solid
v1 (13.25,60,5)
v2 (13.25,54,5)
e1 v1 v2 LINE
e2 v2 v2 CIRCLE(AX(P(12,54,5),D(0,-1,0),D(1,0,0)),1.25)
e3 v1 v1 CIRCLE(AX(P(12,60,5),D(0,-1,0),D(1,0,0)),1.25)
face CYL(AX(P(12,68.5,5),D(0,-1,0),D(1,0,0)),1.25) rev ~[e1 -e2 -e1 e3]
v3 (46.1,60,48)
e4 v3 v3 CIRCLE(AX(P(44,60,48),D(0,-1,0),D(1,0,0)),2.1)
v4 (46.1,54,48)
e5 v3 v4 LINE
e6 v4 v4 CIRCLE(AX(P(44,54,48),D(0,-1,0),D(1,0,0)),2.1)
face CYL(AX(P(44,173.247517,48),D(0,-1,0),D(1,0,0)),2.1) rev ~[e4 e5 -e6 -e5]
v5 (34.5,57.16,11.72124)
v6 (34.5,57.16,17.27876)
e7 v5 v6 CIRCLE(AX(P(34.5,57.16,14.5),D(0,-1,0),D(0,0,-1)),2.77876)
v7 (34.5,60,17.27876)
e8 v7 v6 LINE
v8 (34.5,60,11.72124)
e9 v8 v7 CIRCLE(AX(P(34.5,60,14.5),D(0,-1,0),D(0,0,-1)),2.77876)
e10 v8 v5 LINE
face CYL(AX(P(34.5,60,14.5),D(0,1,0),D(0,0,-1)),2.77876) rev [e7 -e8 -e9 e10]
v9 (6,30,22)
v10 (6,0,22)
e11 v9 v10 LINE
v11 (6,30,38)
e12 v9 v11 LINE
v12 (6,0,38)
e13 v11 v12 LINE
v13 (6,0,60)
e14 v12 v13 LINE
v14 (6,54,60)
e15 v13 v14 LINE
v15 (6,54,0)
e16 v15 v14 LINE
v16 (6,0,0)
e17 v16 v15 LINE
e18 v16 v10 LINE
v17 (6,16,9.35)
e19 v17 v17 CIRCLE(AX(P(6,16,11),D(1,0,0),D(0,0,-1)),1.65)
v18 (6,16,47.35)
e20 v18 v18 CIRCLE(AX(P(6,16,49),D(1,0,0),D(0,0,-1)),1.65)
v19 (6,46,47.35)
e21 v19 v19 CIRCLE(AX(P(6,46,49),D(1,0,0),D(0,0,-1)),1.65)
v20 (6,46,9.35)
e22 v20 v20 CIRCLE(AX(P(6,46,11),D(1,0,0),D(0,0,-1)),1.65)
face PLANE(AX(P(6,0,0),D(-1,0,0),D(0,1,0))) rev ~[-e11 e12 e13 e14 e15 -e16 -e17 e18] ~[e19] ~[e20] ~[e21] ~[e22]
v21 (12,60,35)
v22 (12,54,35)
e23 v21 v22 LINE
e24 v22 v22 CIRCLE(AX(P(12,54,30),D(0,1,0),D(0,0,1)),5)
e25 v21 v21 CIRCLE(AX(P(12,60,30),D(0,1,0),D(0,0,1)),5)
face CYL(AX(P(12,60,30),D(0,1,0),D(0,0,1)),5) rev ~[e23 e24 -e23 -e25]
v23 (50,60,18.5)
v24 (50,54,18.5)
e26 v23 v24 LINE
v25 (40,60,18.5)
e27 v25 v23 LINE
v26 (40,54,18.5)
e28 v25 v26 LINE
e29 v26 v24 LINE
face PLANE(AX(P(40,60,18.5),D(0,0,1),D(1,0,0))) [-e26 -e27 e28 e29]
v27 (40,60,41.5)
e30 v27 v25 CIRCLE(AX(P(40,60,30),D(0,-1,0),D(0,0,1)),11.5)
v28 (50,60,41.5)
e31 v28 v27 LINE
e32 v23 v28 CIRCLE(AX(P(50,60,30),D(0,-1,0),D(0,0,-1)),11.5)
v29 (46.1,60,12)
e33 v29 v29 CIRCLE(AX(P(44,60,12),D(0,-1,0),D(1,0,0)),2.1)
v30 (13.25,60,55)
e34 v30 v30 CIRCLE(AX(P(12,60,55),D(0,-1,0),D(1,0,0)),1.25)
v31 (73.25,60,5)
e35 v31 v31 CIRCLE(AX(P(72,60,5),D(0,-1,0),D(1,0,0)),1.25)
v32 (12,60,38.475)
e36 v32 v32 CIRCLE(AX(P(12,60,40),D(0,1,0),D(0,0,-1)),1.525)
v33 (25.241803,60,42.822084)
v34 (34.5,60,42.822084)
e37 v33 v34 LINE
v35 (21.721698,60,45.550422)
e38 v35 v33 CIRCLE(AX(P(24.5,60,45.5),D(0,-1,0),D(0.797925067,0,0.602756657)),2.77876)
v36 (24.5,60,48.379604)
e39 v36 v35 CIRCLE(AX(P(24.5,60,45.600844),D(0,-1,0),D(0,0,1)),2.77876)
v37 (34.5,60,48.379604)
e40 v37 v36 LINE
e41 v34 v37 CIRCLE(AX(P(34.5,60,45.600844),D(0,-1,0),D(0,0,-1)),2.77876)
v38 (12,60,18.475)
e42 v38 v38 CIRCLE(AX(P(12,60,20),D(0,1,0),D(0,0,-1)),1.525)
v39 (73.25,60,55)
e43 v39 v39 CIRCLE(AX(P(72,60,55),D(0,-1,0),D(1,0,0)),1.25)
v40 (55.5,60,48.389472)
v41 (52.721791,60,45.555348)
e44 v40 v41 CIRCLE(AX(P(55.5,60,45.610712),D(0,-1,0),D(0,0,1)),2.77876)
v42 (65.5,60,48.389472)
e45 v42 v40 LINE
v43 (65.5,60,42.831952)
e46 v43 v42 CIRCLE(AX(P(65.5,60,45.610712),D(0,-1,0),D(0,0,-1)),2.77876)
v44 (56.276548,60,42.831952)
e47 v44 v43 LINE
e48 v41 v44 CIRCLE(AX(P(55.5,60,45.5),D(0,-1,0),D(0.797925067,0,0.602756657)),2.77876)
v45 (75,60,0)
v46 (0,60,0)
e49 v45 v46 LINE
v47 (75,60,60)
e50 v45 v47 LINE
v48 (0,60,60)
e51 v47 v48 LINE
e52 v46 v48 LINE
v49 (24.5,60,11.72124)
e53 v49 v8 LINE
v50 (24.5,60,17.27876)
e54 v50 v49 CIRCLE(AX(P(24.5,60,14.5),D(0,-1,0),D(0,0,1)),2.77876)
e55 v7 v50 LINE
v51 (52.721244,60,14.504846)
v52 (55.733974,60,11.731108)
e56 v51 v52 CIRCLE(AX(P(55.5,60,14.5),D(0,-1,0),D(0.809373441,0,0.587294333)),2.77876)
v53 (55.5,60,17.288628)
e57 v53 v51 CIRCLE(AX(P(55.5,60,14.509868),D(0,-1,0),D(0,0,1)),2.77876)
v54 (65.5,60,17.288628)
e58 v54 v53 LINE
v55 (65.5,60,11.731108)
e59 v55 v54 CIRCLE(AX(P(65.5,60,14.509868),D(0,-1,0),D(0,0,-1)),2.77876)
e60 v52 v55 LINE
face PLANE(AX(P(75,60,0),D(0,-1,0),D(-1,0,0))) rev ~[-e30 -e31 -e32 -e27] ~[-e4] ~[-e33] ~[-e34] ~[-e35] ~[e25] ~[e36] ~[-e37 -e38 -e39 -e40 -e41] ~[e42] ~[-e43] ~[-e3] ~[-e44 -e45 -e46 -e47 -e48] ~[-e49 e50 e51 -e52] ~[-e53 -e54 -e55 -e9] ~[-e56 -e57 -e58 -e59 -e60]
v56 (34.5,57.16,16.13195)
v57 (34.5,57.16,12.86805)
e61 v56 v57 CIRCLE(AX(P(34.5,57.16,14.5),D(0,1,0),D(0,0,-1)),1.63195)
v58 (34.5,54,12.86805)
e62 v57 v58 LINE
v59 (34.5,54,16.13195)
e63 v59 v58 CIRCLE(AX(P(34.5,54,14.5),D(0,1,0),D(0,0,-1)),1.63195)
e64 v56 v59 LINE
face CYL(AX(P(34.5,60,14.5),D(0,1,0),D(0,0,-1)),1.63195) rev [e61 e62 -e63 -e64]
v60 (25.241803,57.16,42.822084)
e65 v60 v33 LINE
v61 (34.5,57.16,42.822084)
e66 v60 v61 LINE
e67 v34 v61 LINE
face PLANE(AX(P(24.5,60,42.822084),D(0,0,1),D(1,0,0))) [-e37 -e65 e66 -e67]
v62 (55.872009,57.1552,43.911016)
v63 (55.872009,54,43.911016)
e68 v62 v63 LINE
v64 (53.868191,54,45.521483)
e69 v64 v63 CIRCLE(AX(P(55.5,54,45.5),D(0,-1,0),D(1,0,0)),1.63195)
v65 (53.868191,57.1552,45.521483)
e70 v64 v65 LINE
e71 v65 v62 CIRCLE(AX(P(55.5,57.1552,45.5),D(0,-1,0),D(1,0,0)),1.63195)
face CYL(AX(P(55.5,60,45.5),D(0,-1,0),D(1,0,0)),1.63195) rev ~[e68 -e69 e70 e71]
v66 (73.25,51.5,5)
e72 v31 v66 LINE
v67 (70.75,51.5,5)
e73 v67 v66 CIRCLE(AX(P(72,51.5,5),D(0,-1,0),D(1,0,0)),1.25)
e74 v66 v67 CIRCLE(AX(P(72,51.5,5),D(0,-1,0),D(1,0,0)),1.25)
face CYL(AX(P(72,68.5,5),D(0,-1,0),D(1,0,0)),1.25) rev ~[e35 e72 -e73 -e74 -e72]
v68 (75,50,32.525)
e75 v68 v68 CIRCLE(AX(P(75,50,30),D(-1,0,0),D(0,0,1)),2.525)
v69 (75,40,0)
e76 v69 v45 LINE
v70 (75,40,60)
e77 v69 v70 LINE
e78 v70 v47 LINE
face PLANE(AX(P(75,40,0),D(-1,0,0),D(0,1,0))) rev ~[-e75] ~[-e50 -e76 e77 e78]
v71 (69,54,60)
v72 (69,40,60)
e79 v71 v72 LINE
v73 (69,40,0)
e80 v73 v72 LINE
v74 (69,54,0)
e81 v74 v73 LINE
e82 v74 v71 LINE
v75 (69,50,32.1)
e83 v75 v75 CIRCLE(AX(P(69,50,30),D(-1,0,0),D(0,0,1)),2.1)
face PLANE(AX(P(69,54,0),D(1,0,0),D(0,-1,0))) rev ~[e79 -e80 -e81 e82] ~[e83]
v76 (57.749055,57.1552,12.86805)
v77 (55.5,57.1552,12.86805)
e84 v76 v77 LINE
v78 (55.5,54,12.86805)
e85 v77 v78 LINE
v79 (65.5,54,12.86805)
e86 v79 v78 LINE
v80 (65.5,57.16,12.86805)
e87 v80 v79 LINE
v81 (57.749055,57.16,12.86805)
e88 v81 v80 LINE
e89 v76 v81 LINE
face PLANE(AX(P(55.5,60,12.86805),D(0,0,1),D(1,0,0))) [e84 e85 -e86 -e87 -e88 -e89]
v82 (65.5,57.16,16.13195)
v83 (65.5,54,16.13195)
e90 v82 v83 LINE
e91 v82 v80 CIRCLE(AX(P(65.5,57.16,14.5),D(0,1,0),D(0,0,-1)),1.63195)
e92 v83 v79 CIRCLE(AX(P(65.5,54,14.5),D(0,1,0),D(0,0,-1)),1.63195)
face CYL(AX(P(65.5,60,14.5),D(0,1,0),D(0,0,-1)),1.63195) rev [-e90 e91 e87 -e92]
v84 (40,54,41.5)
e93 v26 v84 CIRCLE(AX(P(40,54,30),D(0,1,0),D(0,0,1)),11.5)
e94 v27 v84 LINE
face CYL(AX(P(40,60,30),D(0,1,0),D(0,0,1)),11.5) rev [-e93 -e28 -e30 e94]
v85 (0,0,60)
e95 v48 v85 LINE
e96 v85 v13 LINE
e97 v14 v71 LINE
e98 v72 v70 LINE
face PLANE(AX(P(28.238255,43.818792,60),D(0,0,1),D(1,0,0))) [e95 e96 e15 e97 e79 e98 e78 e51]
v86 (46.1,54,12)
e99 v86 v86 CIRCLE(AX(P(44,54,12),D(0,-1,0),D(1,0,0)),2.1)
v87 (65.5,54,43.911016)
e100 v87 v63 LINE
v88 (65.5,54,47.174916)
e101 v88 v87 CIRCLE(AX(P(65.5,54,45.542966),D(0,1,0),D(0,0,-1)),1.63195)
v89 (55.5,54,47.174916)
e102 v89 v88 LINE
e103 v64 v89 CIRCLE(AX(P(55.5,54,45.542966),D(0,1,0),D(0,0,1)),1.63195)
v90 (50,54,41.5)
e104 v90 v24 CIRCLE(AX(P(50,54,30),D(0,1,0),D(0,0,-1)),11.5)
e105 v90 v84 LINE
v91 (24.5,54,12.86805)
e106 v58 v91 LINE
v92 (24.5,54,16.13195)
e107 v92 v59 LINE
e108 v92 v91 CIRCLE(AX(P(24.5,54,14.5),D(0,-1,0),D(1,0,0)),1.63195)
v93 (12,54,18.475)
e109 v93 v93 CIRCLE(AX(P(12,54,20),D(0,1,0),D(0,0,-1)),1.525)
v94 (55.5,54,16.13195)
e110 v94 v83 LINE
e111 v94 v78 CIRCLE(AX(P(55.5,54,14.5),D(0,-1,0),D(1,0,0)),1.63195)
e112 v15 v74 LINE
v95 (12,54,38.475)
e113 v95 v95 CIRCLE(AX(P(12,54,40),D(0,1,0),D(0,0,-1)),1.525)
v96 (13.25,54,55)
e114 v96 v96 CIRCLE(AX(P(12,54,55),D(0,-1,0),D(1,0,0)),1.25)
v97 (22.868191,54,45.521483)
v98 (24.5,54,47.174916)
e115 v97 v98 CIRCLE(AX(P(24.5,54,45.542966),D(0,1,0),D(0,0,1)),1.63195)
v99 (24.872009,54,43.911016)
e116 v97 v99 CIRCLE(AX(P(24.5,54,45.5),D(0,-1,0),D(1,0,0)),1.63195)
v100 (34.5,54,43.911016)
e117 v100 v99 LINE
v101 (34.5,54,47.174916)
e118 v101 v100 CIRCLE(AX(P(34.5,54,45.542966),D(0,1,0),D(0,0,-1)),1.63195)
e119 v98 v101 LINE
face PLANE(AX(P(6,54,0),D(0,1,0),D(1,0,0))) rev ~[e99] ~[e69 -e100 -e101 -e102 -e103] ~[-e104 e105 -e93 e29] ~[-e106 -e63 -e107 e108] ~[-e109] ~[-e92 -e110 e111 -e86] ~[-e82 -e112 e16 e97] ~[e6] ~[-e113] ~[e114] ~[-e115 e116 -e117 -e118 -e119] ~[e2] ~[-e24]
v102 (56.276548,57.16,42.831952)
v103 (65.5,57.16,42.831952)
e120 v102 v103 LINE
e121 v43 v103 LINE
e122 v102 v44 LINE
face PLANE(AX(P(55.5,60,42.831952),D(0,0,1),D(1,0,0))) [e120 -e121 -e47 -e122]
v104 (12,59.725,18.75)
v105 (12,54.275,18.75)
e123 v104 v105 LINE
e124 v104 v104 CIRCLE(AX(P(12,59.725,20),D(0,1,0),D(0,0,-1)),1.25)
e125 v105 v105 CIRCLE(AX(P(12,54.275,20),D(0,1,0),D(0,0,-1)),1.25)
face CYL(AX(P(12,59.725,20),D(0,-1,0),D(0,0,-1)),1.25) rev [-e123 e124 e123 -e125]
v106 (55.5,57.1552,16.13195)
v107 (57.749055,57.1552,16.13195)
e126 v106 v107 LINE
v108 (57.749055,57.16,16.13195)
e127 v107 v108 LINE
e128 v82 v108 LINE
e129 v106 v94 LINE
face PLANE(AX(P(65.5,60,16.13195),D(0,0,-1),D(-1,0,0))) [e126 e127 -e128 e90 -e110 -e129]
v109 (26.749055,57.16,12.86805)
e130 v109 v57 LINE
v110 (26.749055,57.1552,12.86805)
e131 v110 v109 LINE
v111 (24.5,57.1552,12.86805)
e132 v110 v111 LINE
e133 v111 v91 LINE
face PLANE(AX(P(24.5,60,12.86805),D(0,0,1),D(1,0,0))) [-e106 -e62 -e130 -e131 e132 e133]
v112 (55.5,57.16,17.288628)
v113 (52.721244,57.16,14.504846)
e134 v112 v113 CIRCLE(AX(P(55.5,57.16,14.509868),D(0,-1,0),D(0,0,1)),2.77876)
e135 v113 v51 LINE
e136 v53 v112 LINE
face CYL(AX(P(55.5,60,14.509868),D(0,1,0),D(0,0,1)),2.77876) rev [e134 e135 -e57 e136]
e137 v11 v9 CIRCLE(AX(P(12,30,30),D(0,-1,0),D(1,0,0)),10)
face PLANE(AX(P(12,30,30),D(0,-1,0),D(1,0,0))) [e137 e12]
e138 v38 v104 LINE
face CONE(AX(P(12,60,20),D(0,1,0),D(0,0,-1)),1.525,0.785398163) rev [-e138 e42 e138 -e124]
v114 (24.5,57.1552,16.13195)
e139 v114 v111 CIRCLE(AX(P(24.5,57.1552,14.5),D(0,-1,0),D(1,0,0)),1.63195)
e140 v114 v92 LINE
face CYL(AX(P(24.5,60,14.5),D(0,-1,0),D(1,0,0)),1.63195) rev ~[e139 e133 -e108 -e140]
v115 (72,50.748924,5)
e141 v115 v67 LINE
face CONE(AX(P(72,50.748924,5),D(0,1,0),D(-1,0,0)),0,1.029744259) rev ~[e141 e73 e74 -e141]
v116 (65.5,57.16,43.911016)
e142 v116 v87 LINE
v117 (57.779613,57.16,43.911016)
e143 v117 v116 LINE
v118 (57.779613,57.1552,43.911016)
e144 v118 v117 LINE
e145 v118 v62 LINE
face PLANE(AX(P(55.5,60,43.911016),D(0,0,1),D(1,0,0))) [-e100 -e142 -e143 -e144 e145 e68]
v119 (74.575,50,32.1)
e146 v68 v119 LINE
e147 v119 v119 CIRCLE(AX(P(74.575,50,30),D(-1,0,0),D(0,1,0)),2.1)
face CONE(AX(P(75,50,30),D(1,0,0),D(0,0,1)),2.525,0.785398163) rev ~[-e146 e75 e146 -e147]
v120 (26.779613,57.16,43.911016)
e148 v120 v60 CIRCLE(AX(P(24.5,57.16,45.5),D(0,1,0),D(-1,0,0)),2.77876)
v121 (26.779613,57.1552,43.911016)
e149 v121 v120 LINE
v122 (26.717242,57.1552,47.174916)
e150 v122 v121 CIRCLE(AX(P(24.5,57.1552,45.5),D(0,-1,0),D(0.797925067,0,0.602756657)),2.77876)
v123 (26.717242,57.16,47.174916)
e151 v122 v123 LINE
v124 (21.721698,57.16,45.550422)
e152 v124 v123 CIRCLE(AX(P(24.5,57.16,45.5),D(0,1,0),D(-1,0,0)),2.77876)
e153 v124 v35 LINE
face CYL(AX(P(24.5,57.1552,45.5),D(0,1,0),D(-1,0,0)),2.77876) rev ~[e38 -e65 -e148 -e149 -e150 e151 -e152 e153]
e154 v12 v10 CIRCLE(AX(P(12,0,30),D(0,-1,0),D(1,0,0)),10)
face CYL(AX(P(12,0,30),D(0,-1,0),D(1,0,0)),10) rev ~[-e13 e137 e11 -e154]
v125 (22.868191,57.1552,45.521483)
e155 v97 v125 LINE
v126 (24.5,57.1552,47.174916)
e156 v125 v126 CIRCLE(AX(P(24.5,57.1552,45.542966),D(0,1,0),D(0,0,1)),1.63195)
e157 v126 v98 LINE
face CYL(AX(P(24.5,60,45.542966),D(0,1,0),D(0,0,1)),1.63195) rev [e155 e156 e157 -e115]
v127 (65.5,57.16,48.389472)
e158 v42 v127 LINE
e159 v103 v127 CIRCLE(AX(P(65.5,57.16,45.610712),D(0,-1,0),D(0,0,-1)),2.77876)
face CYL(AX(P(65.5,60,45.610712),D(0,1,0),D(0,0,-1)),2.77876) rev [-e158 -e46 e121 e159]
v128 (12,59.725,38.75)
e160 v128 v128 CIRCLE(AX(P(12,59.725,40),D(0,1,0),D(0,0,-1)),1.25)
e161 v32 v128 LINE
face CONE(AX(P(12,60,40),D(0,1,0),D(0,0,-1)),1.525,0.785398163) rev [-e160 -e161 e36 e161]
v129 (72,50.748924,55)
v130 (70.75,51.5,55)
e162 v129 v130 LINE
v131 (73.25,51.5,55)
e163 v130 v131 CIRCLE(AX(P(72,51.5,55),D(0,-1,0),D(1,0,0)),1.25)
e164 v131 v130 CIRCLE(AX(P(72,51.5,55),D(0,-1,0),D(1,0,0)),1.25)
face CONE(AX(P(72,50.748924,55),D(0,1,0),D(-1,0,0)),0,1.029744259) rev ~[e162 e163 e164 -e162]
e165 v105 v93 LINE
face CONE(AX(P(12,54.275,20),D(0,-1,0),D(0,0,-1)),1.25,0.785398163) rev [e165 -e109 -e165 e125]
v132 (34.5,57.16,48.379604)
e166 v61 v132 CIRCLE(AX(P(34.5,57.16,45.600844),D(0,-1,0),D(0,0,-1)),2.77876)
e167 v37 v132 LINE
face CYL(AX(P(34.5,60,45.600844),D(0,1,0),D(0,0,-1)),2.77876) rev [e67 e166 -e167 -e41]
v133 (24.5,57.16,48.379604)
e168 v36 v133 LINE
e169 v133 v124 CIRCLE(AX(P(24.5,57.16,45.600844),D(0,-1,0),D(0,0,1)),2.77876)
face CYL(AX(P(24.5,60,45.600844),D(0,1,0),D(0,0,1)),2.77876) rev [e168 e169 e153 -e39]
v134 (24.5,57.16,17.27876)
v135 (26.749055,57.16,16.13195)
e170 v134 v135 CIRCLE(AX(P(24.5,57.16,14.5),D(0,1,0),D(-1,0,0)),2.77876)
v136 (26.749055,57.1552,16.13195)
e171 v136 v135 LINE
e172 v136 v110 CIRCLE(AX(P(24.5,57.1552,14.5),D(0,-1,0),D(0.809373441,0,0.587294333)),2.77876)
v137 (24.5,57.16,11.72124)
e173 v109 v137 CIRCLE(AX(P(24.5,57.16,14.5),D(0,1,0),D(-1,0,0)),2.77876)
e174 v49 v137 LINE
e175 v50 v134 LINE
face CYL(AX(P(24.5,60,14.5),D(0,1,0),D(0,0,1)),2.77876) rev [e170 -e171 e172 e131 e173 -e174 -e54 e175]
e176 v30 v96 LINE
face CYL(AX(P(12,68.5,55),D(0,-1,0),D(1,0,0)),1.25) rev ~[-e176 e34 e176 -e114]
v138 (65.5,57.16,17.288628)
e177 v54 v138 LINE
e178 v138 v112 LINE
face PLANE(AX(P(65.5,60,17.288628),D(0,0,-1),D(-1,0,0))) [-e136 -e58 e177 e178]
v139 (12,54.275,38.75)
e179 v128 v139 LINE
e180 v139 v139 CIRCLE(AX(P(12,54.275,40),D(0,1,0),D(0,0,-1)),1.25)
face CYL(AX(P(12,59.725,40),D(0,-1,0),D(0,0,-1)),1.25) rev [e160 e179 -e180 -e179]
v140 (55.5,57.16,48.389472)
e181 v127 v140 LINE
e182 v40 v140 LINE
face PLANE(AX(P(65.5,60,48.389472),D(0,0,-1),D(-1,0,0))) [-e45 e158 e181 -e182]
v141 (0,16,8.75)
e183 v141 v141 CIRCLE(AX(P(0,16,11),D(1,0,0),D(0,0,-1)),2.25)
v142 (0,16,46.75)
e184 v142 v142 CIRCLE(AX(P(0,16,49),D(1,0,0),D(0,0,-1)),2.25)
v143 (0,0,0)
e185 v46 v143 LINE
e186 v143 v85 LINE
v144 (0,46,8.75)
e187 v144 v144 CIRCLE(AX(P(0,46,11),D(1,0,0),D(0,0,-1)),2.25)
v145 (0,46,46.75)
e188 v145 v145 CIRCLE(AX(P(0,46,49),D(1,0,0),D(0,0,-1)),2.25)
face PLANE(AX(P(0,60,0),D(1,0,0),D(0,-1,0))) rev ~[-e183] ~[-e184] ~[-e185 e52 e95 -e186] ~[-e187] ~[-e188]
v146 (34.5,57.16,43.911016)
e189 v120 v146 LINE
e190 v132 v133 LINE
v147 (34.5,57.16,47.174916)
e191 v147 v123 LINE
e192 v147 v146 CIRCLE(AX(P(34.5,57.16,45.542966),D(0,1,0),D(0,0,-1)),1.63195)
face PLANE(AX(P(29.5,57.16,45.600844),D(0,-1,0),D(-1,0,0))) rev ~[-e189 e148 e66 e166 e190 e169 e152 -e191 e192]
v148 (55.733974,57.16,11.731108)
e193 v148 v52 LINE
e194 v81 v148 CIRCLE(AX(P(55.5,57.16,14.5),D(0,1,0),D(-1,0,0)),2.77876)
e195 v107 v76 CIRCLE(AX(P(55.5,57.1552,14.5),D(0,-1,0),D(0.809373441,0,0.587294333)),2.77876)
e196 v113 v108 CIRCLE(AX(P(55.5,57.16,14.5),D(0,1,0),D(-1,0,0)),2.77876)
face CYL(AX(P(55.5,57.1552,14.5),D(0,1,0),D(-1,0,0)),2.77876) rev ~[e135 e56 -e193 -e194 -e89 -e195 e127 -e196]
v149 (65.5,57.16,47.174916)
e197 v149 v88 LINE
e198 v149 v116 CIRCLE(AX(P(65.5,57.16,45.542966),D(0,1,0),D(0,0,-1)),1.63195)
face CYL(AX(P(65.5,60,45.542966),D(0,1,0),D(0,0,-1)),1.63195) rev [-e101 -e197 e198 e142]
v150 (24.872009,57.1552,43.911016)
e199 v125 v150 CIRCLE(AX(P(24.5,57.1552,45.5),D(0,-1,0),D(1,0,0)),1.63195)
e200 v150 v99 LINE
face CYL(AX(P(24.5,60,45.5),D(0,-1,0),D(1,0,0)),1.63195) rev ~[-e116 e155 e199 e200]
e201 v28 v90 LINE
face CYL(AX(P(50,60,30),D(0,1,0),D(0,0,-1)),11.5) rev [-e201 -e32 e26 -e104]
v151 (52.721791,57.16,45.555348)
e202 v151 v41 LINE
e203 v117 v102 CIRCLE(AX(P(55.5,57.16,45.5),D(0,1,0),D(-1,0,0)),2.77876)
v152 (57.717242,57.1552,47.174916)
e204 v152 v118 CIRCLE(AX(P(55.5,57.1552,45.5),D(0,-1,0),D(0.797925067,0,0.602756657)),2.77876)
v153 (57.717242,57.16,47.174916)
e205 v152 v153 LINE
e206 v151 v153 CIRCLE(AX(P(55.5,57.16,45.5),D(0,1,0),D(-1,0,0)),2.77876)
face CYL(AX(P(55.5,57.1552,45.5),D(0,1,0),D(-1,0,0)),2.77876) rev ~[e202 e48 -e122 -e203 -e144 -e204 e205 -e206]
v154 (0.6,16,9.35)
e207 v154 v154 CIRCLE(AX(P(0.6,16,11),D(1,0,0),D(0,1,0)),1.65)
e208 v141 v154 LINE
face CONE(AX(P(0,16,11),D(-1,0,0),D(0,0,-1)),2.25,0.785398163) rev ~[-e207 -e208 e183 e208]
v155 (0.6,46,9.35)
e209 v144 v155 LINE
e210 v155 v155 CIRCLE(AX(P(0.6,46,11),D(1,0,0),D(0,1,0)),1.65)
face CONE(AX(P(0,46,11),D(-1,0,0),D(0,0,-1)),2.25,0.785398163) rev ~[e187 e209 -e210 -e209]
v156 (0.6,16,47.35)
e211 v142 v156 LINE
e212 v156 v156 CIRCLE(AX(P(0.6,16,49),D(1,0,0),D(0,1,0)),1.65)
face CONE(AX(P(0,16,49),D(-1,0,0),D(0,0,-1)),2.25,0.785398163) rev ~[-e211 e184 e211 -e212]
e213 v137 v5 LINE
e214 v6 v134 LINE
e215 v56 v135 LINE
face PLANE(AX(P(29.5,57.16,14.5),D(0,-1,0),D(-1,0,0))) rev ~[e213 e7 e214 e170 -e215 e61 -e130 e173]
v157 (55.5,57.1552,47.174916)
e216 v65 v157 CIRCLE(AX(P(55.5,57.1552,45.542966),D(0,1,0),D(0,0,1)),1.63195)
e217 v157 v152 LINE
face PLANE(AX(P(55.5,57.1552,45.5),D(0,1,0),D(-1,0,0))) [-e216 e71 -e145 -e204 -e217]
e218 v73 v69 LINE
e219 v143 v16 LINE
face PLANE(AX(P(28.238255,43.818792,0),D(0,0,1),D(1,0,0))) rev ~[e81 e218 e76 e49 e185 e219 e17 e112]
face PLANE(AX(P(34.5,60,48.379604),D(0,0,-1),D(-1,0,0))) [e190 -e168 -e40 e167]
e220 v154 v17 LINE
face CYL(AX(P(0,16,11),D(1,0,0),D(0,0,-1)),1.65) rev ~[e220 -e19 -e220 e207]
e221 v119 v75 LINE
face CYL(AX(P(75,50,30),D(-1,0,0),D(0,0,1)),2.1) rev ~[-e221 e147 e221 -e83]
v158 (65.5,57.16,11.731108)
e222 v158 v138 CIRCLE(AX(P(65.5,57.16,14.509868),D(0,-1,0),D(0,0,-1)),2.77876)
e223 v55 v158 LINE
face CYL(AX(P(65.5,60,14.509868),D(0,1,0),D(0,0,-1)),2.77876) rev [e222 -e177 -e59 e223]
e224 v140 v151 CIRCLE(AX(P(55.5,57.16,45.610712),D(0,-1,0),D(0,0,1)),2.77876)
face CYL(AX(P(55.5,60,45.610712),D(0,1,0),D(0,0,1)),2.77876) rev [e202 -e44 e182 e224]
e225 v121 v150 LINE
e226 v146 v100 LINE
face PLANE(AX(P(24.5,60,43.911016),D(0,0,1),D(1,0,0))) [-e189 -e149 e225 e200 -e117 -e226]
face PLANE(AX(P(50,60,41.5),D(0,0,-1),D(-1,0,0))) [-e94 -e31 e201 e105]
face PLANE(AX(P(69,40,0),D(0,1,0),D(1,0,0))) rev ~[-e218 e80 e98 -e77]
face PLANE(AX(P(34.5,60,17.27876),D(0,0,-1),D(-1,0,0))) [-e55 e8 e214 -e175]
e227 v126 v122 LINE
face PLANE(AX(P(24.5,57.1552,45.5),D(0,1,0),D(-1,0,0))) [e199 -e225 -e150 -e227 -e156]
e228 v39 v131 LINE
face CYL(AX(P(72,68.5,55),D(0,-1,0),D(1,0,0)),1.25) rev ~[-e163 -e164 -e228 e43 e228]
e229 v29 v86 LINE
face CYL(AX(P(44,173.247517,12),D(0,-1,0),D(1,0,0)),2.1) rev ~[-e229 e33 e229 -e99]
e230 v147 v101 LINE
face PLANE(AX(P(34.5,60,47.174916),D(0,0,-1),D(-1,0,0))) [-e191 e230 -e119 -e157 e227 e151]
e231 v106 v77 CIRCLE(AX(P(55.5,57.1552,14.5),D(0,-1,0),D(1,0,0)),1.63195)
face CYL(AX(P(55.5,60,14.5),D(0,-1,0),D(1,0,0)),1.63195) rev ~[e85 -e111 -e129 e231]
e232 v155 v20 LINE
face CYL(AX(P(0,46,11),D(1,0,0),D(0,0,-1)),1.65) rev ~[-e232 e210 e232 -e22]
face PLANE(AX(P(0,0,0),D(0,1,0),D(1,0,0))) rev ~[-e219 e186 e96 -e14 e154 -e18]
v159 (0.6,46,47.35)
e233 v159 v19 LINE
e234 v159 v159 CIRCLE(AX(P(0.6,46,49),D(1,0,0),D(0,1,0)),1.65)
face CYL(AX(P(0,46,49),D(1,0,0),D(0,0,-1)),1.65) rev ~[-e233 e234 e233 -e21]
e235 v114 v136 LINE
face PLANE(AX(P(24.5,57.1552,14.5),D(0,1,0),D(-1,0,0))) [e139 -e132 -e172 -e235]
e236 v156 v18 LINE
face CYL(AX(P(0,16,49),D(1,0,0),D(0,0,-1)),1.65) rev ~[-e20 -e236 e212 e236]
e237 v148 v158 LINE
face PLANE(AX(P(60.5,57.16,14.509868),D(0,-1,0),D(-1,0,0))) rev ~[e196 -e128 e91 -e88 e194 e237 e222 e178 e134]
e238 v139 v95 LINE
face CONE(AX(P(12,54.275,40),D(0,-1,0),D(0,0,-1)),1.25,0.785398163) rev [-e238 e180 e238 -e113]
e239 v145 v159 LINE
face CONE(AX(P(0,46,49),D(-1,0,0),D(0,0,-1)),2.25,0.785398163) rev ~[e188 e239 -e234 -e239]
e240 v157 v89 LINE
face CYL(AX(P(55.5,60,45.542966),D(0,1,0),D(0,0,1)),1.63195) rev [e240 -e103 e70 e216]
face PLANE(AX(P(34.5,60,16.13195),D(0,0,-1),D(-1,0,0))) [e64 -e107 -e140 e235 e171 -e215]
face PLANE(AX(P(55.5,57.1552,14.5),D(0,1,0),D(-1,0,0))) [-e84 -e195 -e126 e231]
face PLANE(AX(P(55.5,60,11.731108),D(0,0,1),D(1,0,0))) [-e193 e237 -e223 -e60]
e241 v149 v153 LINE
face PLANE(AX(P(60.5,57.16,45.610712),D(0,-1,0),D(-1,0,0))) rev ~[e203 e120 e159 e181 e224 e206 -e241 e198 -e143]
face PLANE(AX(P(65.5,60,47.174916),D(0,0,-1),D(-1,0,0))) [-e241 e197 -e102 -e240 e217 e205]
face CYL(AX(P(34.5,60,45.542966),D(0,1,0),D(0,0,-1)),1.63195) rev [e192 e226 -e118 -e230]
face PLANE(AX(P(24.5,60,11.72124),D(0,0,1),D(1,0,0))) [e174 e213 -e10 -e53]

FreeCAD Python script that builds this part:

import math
import FreeCAD as App
import Part
import Sketcher
from FreeCAD import Vector


def add_polygon(sketch, points):
    """Adds a closed chain of lines whose ends are joined by coincident constraints."""
    first, n = sketch.GeometryCount, len(points)
    for a, b in zip(points, points[1:] + points[:1]):
        sketch.addGeometry(Part.LineSegment(App.Vector(*a, 0), App.Vector(*b, 0)), False)
    for i in range(n):
        sketch.addConstraint(Sketcher.Constraint("Coincident", first + i, 2, first + (i + 1) % n, 1))

doc = App.newDocument("Part")
body = doc.addObject("PartDesign::Body", "Body")

sketch1 = doc.addObject("Sketcher::SketchObject", "Sketch")
body.addObject(sketch1)
sketch1.AttachmentSupport = (doc.XY_Plane, [""])
sketch1.MapMode = "FlatFace"
add_polygon(sketch1, [(0, 0), (6, 0), (6, 54), (69, 54), (69, 40), (75, 40), (75, 60), (0, 60)])
sketch1.addConstraint(Sketcher.Constraint("Horizontal", 0))
sketch1.addConstraint(Sketcher.Constraint("Vertical", 1))
sketch1.addConstraint(Sketcher.Constraint("Horizontal", 2))
sketch1.addConstraint(Sketcher.Constraint("Vertical", 3))
sketch1.addConstraint(Sketcher.Constraint("Horizontal", 4))
sketch1.addConstraint(Sketcher.Constraint("Vertical", 5))
sketch1.addConstraint(Sketcher.Constraint("Horizontal", 6))
sketch1.addConstraint(Sketcher.Constraint("Vertical", 7))
sketch1.addConstraint(Sketcher.Constraint("Coincident", 7, 2, -1, 1))
sketch1.addConstraint(Sketcher.Constraint("Equal", 0, 4))
sketch1.addConstraint(Sketcher.Constraint("DistanceX", 0, 1, 0, 2, 6.0))
sketch1.addConstraint(Sketcher.Constraint("DistanceX", 2, 1, 2, 2, 63.0))
sketch1.addConstraint(Sketcher.Constraint("DistanceY", 1, 1, 1, 2, 54.0))
sketch1.addConstraint(Sketcher.Constraint("DistanceY", 3, 2, 3, 1, 14.0))
sketch1.addConstraint(Sketcher.Constraint("DistanceY", 5, 1, 5, 2, 20.0))
pad1 = doc.addObject("PartDesign::Pad", "Pad")
body.addObject(pad1)
pad1.Profile = sketch1
pad1.Length = 60

sketch2 = doc.addObject("Sketcher::SketchObject", "Sketch001")
body.addObject(sketch2)
sketch2.AttachmentSupport = (doc.XZ_Plane, [""])
sketch2.MapMode = "FlatFace"
sketch2.AttachmentOffset = App.Placement(Vector(0, 0, -60), App.Rotation())
sketch2.addGeometry(Part.LineSegment(Vector(50, 18.5, 0), Vector(40, 18.5, 0)), False)
sketch2.addGeometry(Part.ArcOfCircle(Part.Circle(Vector(40, 30, 0), Vector(0, 0, 1), 11.5), math.radians(90), math.radians(270)), False)
sketch2.addGeometry(Part.LineSegment(Vector(40, 41.5, 0), Vector(50, 41.5, 0)), False)
sketch2.addGeometry(Part.ArcOfCircle(Part.Circle(Vector(50, 30, 0), Vector(0, 0, 1), 11.5), math.radians(-90), math.radians(90)), False)
sketch2.addConstraint(Sketcher.Constraint("Tangent", 0, 2, 1, 2))
sketch2.addConstraint(Sketcher.Constraint("Tangent", 1, 1, 2, 1))
sketch2.addConstraint(Sketcher.Constraint("Tangent", 2, 2, 3, 2))
sketch2.addConstraint(Sketcher.Constraint("Tangent", 3, 1, 0, 1))
sketch2.addConstraint(Sketcher.Constraint("Horizontal", 0))
sketch2.addConstraint(Sketcher.Constraint("Horizontal", 2))
sketch2.addConstraint(Sketcher.Constraint("Radius", 1, 11.5))
sketch2.addConstraint(Sketcher.Constraint("DistanceX", 0, 2, 0, 1, 10.0))
sketch2.addConstraint(Sketcher.Constraint("DistanceX", -1, 1, 1, 3, 40.0))
sketch2.addConstraint(Sketcher.Constraint("DistanceY", -1, 1, 1, 3, 30.0))
pocket1 = doc.addObject("PartDesign::Pocket", "Pocket")
body.addObject(pocket1)
pocket1.Profile = sketch2
pocket1.Type = "ThroughAll"
pocket1.Reversed = True

sketch3 = doc.addObject("Sketcher::SketchObject", "Sketch002")
body.addObject(sketch3)
sketch3.AttachmentSupport = (doc.XZ_Plane, [""])
sketch3.MapMode = "FlatFace"
sketch3.AttachmentOffset = App.Placement(Vector(0, 0, -60), App.Rotation())
sketch3.addGeometry(Part.Circle(Vector(24.5, 45.5, 0), Vector(0, 0, 1), 1.63195), False)
sketch3.addGeometry(Part.Circle(Vector(55.5, 45.5, 0), Vector(0, 0, 1), 1.63195), False)
sketch3.addGeometry(Part.Circle(Vector(24.5, 14.5, 0), Vector(0, 0, 1), 1.63195), False)
sketch3.addGeometry(Part.Circle(Vector(55.5, 14.5, 0), Vector(0, 0, 1), 1.63195), False)
sketch3.addConstraint(Sketcher.Constraint("Equal", 0, 1))
sketch3.addConstraint(Sketcher.Constraint("Equal", 1, 2))
sketch3.addConstraint(Sketcher.Constraint("Equal", 2, 3))
sketch3.addConstraint(Sketcher.Constraint("Horizontal", 0, 3, 1, 3))
sketch3.addConstraint(Sketcher.Constraint("Horizontal", 2, 3, 3, 3))
sketch3.addConstraint(Sketcher.Constraint("Vertical", 0, 3, 2, 3))
sketch3.addConstraint(Sketcher.Constraint("Vertical", 1, 3, 3, 3))
sketch3.addConstraint(Sketcher.Constraint("DistanceX", 0, 3, 1, 3, 31.0))
sketch3.addConstraint(Sketcher.Constraint("DistanceY", 2, 3, 0, 3, 31.0))
sketch3.addConstraint(Sketcher.Constraint("Diameter", 0, 3.2639))
sketch3.addConstraint(Sketcher.Constraint("DistanceX", -1, 1, 0, 3, 24.5))
sketch3.addConstraint(Sketcher.Constraint("DistanceY", -1, 1, 0, 3, 45.5))
doc.recompute()
hole = doc.addObject("PartDesign::Hole", "Hole")
body.addObject(hole)
hole.Profile = sketch3
hole.ThreadType = "None"
hole.Diameter = 3.2639
hole.DepthType = "ThroughAll"
hole.HoleCutType = "Counterbore"
hole.HoleCutDiameter = 5.55752
hole.HoleCutDepth = 2.8448
hole.Reversed = True

sketch4 = doc.addObject("Sketcher::SketchObject", "Sketch003")
body.addObject(sketch4)
sketch4.AttachmentSupport = (doc.XZ_Plane, [""])
sketch4.MapMode = "FlatFace"
sketch4.AttachmentOffset = App.Placement(Vector(0, 0, -60), App.Rotation())
sketch4.addGeometry(Part.LineSegment(Vector(34.5, 12.86805, 0), Vector(24.5, 12.86805, 0)), False)
sketch4.addGeometry(Part.ArcOfCircle(Part.Circle(Vector(24.5, 14.5, 0), Vector(0, 0, 1), 1.63195), math.radians(90), math.radians(270)), False)
sketch4.addGeometry(Part.LineSegment(Vector(24.5, 16.13195, 0), Vector(34.5, 16.13195, 0)), False)
sketch4.addGeometry(Part.ArcOfCircle(Part.Circle(Vector(34.5, 14.5, 0), Vector(0, 0, 1), 1.63195), math.radians(-90), math.radians(90)), False)
sketch4.addConstraint(Sketcher.Constraint("Tangent", 0, 2, 1, 2))
sketch4.addConstraint(Sketcher.Constraint("Tangent", 1, 1, 2, 1))
sketch4.addConstraint(Sketcher.Constraint("Tangent", 2, 2, 3, 2))
sketch4.addConstraint(Sketcher.Constraint("Tangent", 3, 1, 0, 1))
sketch4.addConstraint(Sketcher.Constraint("Horizontal", 0))
sketch4.addConstraint(Sketcher.Constraint("Horizontal", 2))
sketch4.addConstraint(Sketcher.Constraint("DistanceX", 0, 2, 0, 1, 10.0))
sketch4.addConstraint(Sketcher.Constraint("DistanceX", -1, 1, 1, 3, 24.5))
sketch4.addConstraint(Sketcher.Constraint("DistanceY", -1, 1, 1, 3, 14.5))
sketch4.addConstraint(Sketcher.Constraint("Radius", 1, 1.63195))
pocket2 = doc.addObject("PartDesign::Pocket", "Pocket001")
body.addObject(pocket2)
pocket2.Profile = sketch4
pocket2.Type = "UpToFirst"
pocket2.Reversed = True

sketch5 = doc.addObject("Sketcher::SketchObject", "Sketch004")
body.addObject(sketch5)
sketch5.AttachmentSupport = (doc.XZ_Plane, [""])
sketch5.MapMode = "FlatFace"
sketch5.AttachmentOffset = App.Placement(Vector(0, 0, -60), App.Rotation())
sketch5.addGeometry(Part.LineSegment(Vector(65.5, 12.86805, 0), Vector(55.5, 12.86805, 0)), False)
sketch5.addGeometry(Part.ArcOfCircle(Part.Circle(Vector(55.5, 14.5, 0), Vector(0, 0, 1), 1.63195), math.radians(90), math.radians(270)), False)
sketch5.addGeometry(Part.LineSegment(Vector(55.5, 16.13195, 0), Vector(65.5, 16.13195, 0)), False)
sketch5.addGeometry(Part.ArcOfCircle(Part.Circle(Vector(65.5, 14.5, 0), Vector(0, 0, 1), 1.63195), math.radians(-90), math.radians(90)), False)
sketch5.addConstraint(Sketcher.Constraint("Tangent", 0, 2, 1, 2))
sketch5.addConstraint(Sketcher.Constraint("Tangent", 1, 1, 2, 1))
sketch5.addConstraint(Sketcher.Constraint("Tangent", 2, 2, 3, 2))
sketch5.addConstraint(Sketcher.Constraint("Tangent", 3, 1, 0, 1))
sketch5.addConstraint(Sketcher.Constraint("Horizontal", 0))
sketch5.addConstraint(Sketcher.Constraint("Horizontal", 2))
sketch5.addConstraint(Sketcher.Constraint("DistanceX", 0, 2, 0, 1, 10.0))
sketch5.addConstraint(Sketcher.Constraint("DistanceX", -1, 1, 1, 3, 55.5))
sketch5.addConstraint(Sketcher.Constraint("DistanceY", -1, 1, 1, 3, 14.5))
sketch5.addConstraint(Sketcher.Constraint("Radius", 1, 1.63195))
pocket3 = doc.addObject("PartDesign::Pocket", "Pocket002")
body.addObject(pocket3)
pocket3.Profile = sketch5
pocket3.Type = "UpToFirst"
pocket3.Reversed = True

sketch6 = doc.addObject("Sketcher::SketchObject", "Sketch005")
body.addObject(sketch6)
sketch6.AttachmentSupport = (doc.XZ_Plane, [""])
sketch6.MapMode = "FlatFace"
sketch6.AttachmentOffset = App.Placement(Vector(0, 0, -60), App.Rotation())
sketch6.addGeometry(Part.LineSegment(Vector(34.5, 43.911016, 0), Vector(24.5, 43.911016, 0)), False)
sketch6.addGeometry(Part.ArcOfCircle(Part.Circle(Vector(24.5, 45.542966, 0), Vector(0, 0, 1), 1.63195), math.radians(90), math.radians(270)), False)
sketch6.addGeometry(Part.LineSegment(Vector(24.5, 47.174916, 0), Vector(34.5, 47.174916, 0)), False)
sketch6.addGeometry(Part.ArcOfCircle(Part.Circle(Vector(34.5, 45.542966, 0), Vector(0, 0, 1), 1.63195), math.radians(-90), math.radians(90)), False)
sketch6.addConstraint(Sketcher.Constraint("Tangent", 0, 2, 1, 2))
sketch6.addConstraint(Sketcher.Constraint("Tangent", 1, 1, 2, 1))
sketch6.addConstraint(Sketcher.Constraint("Tangent", 2, 2, 3, 2))
sketch6.addConstraint(Sketcher.Constraint("Tangent", 3, 1, 0, 1))
sketch6.addConstraint(Sketcher.Constraint("Horizontal", 0))
sketch6.addConstraint(Sketcher.Constraint("Horizontal", 2))
sketch6.addConstraint(Sketcher.Constraint("DistanceX", 0, 2, 0, 1, 10.0))
sketch6.addConstraint(Sketcher.Constraint("DistanceX", -1, 1, 1, 3, 24.5))
sketch6.addConstraint(Sketcher.Constraint("Radius", 1, 1.63195))
sketch6.addConstraint(Sketcher.Constraint("DistanceY", -1, 1, 1, 3, 45.542966))
pocket4 = doc.addObject("PartDesign::Pocket", "Pocket003")
body.addObject(pocket4)
pocket4.Profile = sketch6
pocket4.Type = "UpToFirst"
pocket4.Reversed = True

sketch7 = doc.addObject("Sketcher::SketchObject", "Sketch006")
body.addObject(sketch7)
sketch7.AttachmentSupport = (doc.XZ_Plane, [""])
sketch7.MapMode = "FlatFace"
sketch7.AttachmentOffset = App.Placement(Vector(0, 0, -60), App.Rotation())
sketch7.addGeometry(Part.LineSegment(Vector(65.5, 43.911016, 0), Vector(55.5, 43.911016, 0)), False)
sketch7.addGeometry(Part.ArcOfCircle(Part.Circle(Vector(55.5, 45.542966, 0), Vector(0, 0, 1), 1.63195), math.radians(90), math.radians(270)), False)
sketch7.addGeometry(Part.LineSegment(Vector(55.5, 47.174916, 0), Vector(65.5, 47.174916, 0)), False)
sketch7.addGeometry(Part.ArcOfCircle(Part.Circle(Vector(65.5, 45.542966, 0), Vector(0, 0, 1), 1.63195), math.radians(-90), math.radians(90)), False)
sketch7.addConstraint(Sketcher.Constraint("Tangent", 0, 2, 1, 2))
sketch7.addConstraint(Sketcher.Constraint("Tangent", 1, 1, 2, 1))
sketch7.addConstraint(Sketcher.Constraint("Tangent", 2, 2, 3, 2))
sketch7.addConstraint(Sketcher.Constraint("Tangent", 3, 1, 0, 1))
sketch7.addConstraint(Sketcher.Constraint("Horizontal", 0))
sketch7.addConstraint(Sketcher.Constraint("Horizontal", 2))
sketch7.addConstraint(Sketcher.Constraint("DistanceX", 0, 2, 0, 1, 10.0))
sketch7.addConstraint(Sketcher.Constraint("DistanceX", -1, 1, 1, 3, 55.5))
sketch7.addConstraint(Sketcher.Constraint("Radius", 1, 1.63195))
sketch7.addConstraint(Sketcher.Constraint("DistanceY", -1, 1, 1, 3, 45.542966))
pocket5 = doc.addObject("PartDesign::Pocket", "Pocket004")
body.addObject(pocket5)
pocket5.Profile = sketch7
pocket5.Type = "UpToFirst"
pocket5.Reversed = True

sketch8 = doc.addObject("Sketcher::SketchObject", "Sketch007")
body.addObject(sketch8)
sketch8.AttachmentSupport = (doc.XZ_Plane, [""])
sketch8.MapMode = "FlatFace"
sketch8.AttachmentOffset = App.Placement(Vector(0, 0, -60), App.Rotation())
sketch8.addGeometry(Part.LineSegment(Vector(34.5, 11.72124, 0), Vector(24.5, 11.72124, 0)), False)
sketch8.addGeometry(Part.ArcOfCircle(Part.Circle(Vector(24.5, 14.5, 0), Vector(0, 0, 1), 2.77876), math.radians(90), math.radians(270)), False)
sketch8.addGeometry(Part.LineSegment(Vector(24.5, 17.27876, 0), Vector(34.5, 17.27876, 0)), False)
sketch8.addGeometry(Part.ArcOfCircle(Part.Circle(Vector(34.5, 14.5, 0), Vector(0, 0, 1), 2.77876), math.radians(-90), math.radians(90)), False)
sketch8.addGeometry(Part.LineSegment(Vector(65.5, 11.731108, 0), Vector(55.5, 11.731108, 0)), False)
sketch8.addGeometry(Part.ArcOfCircle(Part.Circle(Vector(55.5, 14.509868, 0), Vector(0, 0, 1), 2.77876), math.radians(90), math.radians(270)), False)
sketch8.addGeometry(Part.LineSegment(Vector(55.5, 17.288628, 0), Vector(65.5, 17.288628, 0)), False)
sketch8.addGeometry(Part.ArcOfCircle(Part.Circle(Vector(65.5, 14.509868, 0), Vector(0, 0, 1), 2.77876), math.radians(-90), math.radians(90)), False)
sketch8.addGeometry(Part.LineSegment(Vector(34.5, 42.822084, 0), Vector(24.5, 42.822084, 0)), False)
sketch8.addGeometry(Part.ArcOfCircle(Part.Circle(Vector(24.5, 45.600844, 0), Vector(0, 0, 1), 2.77876), math.radians(90), math.radians(270)), False)
sketch8.addGeometry(Part.LineSegment(Vector(24.5, 48.379604, 0), Vector(34.5, 48.379604, 0)), False)
sketch8.addGeometry(Part.ArcOfCircle(Part.Circle(Vector(34.5, 45.600844, 0), Vector(0, 0, 1), 2.77876), math.radians(-90), math.radians(90)), False)
sketch8.addGeometry(Part.LineSegment(Vector(65.5, 42.831952, 0), Vector(55.5, 42.831952, 0)), False)
sketch8.addGeometry(Part.ArcOfCircle(Part.Circle(Vector(55.5, 45.610712, 0), Vector(0, 0, 1), 2.77876), math.radians(90), math.radians(270)), False)
sketch8.addGeometry(Part.LineSegment(Vector(55.5, 48.389472, 0), Vector(65.5, 48.389472, 0)), False)
sketch8.addGeometry(Part.ArcOfCircle(Part.Circle(Vector(65.5, 45.610712, 0), Vector(0, 0, 1), 2.77876), math.radians(-90), math.radians(90)), False)
sketch8.addConstraint(Sketcher.Constraint("Tangent", 0, 2, 1, 2))
sketch8.addConstraint(Sketcher.Constraint("Tangent", 1, 1, 2, 1))
sketch8.addConstraint(Sketcher.Constraint("Tangent", 2, 2, 3, 2))
sketch8.addConstraint(Sketcher.Constraint("Tangent", 3, 1, 0, 1))
sketch8.addConstraint(Sketcher.Constraint("Tangent", 4, 2, 5, 2))
sketch8.addConstraint(Sketcher.Constraint("Tangent", 5, 1, 6, 1))
sketch8.addConstraint(Sketcher.Constraint("Tangent", 6, 2, 7, 2))
sketch8.addConstraint(Sketcher.Constraint("Tangent", 7, 1, 4, 1))
sketch8.addConstraint(Sketcher.Constraint("Tangent", 8, 2, 9, 2))
sketch8.addConstraint(Sketcher.Constraint("Tangent", 9, 1, 10, 1))
sketch8.addConstraint(Sketcher.Constraint("Tangent", 10, 2, 11, 2))
sketch8.addConstraint(Sketcher.Constraint("Tangent", 11, 1, 8, 1))
sketch8.addConstraint(Sketcher.Constraint("Tangent", 12, 2, 13, 2))
sketch8.addConstraint(Sketcher.Constraint("Tangent", 13, 1, 14, 1))
sketch8.addConstraint(Sketcher.Constraint("Tangent", 14, 2, 15, 2))
sketch8.addConstraint(Sketcher.Constraint("Tangent", 15, 1, 12, 1))
sketch8.addConstraint(Sketcher.Constraint("Horizontal", 0))
sketch8.addConstraint(Sketcher.Constraint("Horizontal", 2))
sketch8.addConstraint(Sketcher.Constraint("Horizontal", 4))
sketch8.addConstraint(Sketcher.Constraint("Horizontal", 6))
sketch8.addConstraint(Sketcher.Constraint("Horizontal", 8))
sketch8.addConstraint(Sketcher.Constraint("Horizontal", 10))
sketch8.addConstraint(Sketcher.Constraint("Horizontal", 12))
sketch8.addConstraint(Sketcher.Constraint("Horizontal", 14))
sketch8.addConstraint(Sketcher.Constraint("Equal", 3, 5))
sketch8.addConstraint(Sketcher.Constraint("Equal", 7, 9))
sketch8.addConstraint(Sketcher.Constraint("Equal", 11, 13))
sketch8.addConstraint(Sketcher.Constraint("Vertical", 1, 3, 9, 3))
sketch8.addConstraint(Sketcher.Constraint("Vertical", 3, 3, 11, 3))
sketch8.addConstraint(Sketcher.Constraint("Vertical", 5, 3, 13, 3))
sketch8.addConstraint(Sketcher.Constraint("Vertical", 7, 3, 15, 3))
sketch8.addConstraint(Sketcher.Constraint("Equal", 2, 4))
sketch8.addConstraint(Sketcher.Constraint("DistanceX", 0, 2, 0, 1, 10.0))
sketch8.addConstraint(Sketcher.Constraint("DistanceX", 3, 3, 5, 3, 21.0))
sketch8.addConstraint(Sketcher.Constraint("DistanceX", -1, 1, 1, 3, 24.5))
sketch8.addConstraint(Sketcher.Constraint("DistanceY", -1, 1, 1, 3, 14.5))
sketch8.addConstraint(Sketcher.Constraint("Radius", 1, 2.77876))
sketch8.addConstraint(Sketcher.Constraint("DistanceY", -1, 1, 13, 3, 45.610712))
sketch8.addConstraint(Sketcher.Constraint("DistanceY", -1, 1, 5, 3, 14.509868))
sketch8.addConstraint(Sketcher.Constraint("DistanceY", -1, 1, 9, 3, 45.600844))
pocket6 = doc.addObject("PartDesign::Pocket", "Pocket005")
body.addObject(pocket6)
pocket6.Profile = sketch8
pocket6.Length = 2.84
pocket6.Reversed = True

sketch9 = doc.addObject("Sketcher::SketchObject", "Sketch008")
body.addObject(sketch9)
sketch9.AttachmentSupport = (doc.XZ_Plane, [""])
sketch9.MapMode = "FlatFace"
sketch9.AttachmentOffset = App.Placement(Vector(0, 0, -60), App.Rotation())
sketch9.addGeometry(Part.Circle(Vector(12, 55, 0), Vector(0, 0, 1), 1.25), False)
sketch9.addGeometry(Part.Circle(Vector(72, 55, 0), Vector(0, 0, 1), 1.25), False)
sketch9.addGeometry(Part.Circle(Vector(12, 5, 0), Vector(0, 0, 1), 1.25), False)
sketch9.addGeometry(Part.Circle(Vector(72, 5, 0), Vector(0, 0, 1), 1.25), False)
sketch9.addConstraint(Sketcher.Constraint("Equal", 0, 1))
sketch9.addConstraint(Sketcher.Constraint("Equal", 1, 2))
sketch9.addConstraint(Sketcher.Constraint("Equal", 2, 3))
sketch9.addConstraint(Sketcher.Constraint("Horizontal", 0, 3, 1, 3))
sketch9.addConstraint(Sketcher.Constraint("Horizontal", 2, 3, 3, 3))
sketch9.addConstraint(Sketcher.Constraint("Vertical", 0, 3, 2, 3))
sketch9.addConstraint(Sketcher.Constraint("Vertical", 1, 3, 3, 3))
sketch9.addConstraint(Sketcher.Constraint("Diameter", 0, 2.5))
sketch9.addConstraint(Sketcher.Constraint("DistanceX", -1, 1, 0, 3, 12.0))
sketch9.addConstraint(Sketcher.Constraint("DistanceY", -1, 1, 0, 3, 55.0))
sketch9.addConstraint(Sketcher.Constraint("DistanceX", -1, 1, 1, 3, 72.0))
sketch9.addConstraint(Sketcher.Constraint("DistanceY", -1, 1, 2, 3, 5.0))
doc.recompute()
hole2 = doc.addObject("PartDesign::Hole", "Hole001")
body.addObject(hole2)
hole2.Profile = sketch9
hole2.ThreadType = "None"
hole2.Diameter = 2.5
hole2.DepthType = "Dimension"
hole2.Depth = 8.5
hole2.DrillPoint = "Angled"
hole2.DrillPointAngle = 118
hole2.Reversed = True

sketch10 = doc.addObject("Sketcher::SketchObject", "Sketch009")
body.addObject(sketch10)
sketch10.AttachmentSupport = (doc.XZ_Plane, [""])
sketch10.MapMode = "FlatFace"
sketch10.AttachmentOffset = App.Placement(Vector(0, 0, -60), App.Rotation())
sketch10.addGeometry(Part.Circle(Vector(44, 12, 0), Vector(0, 0, 1), 2.1), False)
sketch10.addGeometry(Part.Circle(Vector(44, 48, 0), Vector(0, 0, 1), 2.1), False)
sketch10.addConstraint(Sketcher.Constraint("Equal", 0, 1))
sketch10.addConstraint(Sketcher.Constraint("Vertical", 0, 3, 1, 3))
sketch10.addConstraint(Sketcher.Constraint("Diameter", 0, 4.2))
sketch10.addConstraint(Sketcher.Constraint("DistanceX", -1, 1, 0, 3, 44.0))
sketch10.addConstraint(Sketcher.Constraint("DistanceY", -1, 1, 0, 3, 12.0))
sketch10.addConstraint(Sketcher.Constraint("DistanceY", -1, 1, 1, 3, 48.0))
doc.recompute()
hole3 = doc.addObject("PartDesign::Hole", "Hole002")
body.addObject(hole3)
hole3.Profile = sketch10
hole3.ThreadType = "None"
hole3.Diameter = 4.2
hole3.DepthType = "ThroughAll"
hole3.Reversed = True

sketch11 = doc.addObject("Sketcher::SketchObject", "Sketch010")
body.addObject(sketch11)
sketch11.AttachmentSupport = (doc.XZ_Plane, [""])
sketch11.MapMode = "FlatFace"
sketch11.AttachmentOffset = App.Placement(Vector(0, 0, -60), App.Rotation())
sketch11.addGeometry(Part.Circle(Vector(12, 30, 0), Vector(0, 0, 1), 5), False)
sketch11.addConstraint(Sketcher.Constraint("Diameter", 0, 10.0))
sketch11.addConstraint(Sketcher.Constraint("DistanceX", -1, 1, 0, 3, 12.0))
sketch11.addConstraint(Sketcher.Constraint("DistanceY", -1, 1, 0, 3, 30.0))
pocket7 = doc.addObject("PartDesign::Pocket", "Pocket006")
body.addObject(pocket7)
pocket7.Profile = sketch11
pocket7.Type = "ThroughAll"
pocket7.Reversed = True

sketch12 = doc.addObject("Sketcher::SketchObject", "Sketch011")
body.addObject(sketch12)
sketch12.AttachmentSupport = (doc.YZ_Plane, [""])
sketch12.MapMode = "FlatFace"
sketch12.addGeometry(Part.Circle(Vector(46, 11, 0), Vector(0, 0, 1), 1.65), False)
sketch12.addGeometry(Part.Circle(Vector(16, 11, 0), Vector(0, 0, 1), 1.65), False)
sketch12.addGeometry(Part.Circle(Vector(46, 49, 0), Vector(0, 0, 1), 1.65), False)
sketch12.addGeometry(Part.Circle(Vector(16, 49, 0), Vector(0, 0, 1), 1.65), False)
sketch12.addConstraint(Sketcher.Constraint("Equal", 0, 1))
sketch12.addConstraint(Sketcher.Constraint("Equal", 1, 2))
sketch12.addConstraint(Sketcher.Constraint("Equal", 2, 3))
sketch12.addConstraint(Sketcher.Constraint("Horizontal", 0, 3, 1, 3))
sketch12.addConstraint(Sketcher.Constraint("Horizontal", 2, 3, 3, 3))
sketch12.addConstraint(Sketcher.Constraint("Vertical", 0, 3, 2, 3))
sketch12.addConstraint(Sketcher.Constraint("Vertical", 1, 3, 3, 3))
sketch12.addConstraint(Sketcher.Constraint("Diameter", 0, 3.3))
sketch12.addConstraint(Sketcher.Constraint("DistanceX", -1, 1, 0, 3, 46.0))
sketch12.addConstraint(Sketcher.Constraint("DistanceY", -1, 1, 0, 3, 11.0))
sketch12.addConstraint(Sketcher.Constraint("DistanceX", -1, 1, 1, 3, 16.0))
sketch12.addConstraint(Sketcher.Constraint("DistanceY", -1, 1, 2, 3, 49.0))
doc.recompute()
hole4 = doc.addObject("PartDesign::Hole", "Hole003")
body.addObject(hole4)
hole4.Profile = sketch12
hole4.ThreadType = "None"
hole4.Diameter = 3.3
hole4.DepthType = "Dimension"
hole4.Depth = 6
hole4.DrillPoint = "Flat"
hole4.HoleCutType = "Countersink"
hole4.HoleCutDiameter = 4.5
hole4.HoleCutCountersinkAngle = 90
hole4.Reversed = True

sketch13 = doc.addObject("Sketcher::SketchObject", "Sketch012")
body.addObject(sketch13)
sketch13.AttachmentSupport = (doc.YZ_Plane, [""])
sketch13.MapMode = "FlatFace"
sketch13.AttachmentOffset = App.Placement(Vector(0, 0, 75), App.Rotation())
sketch13.addGeometry(Part.Circle(Vector(50, 30, 0), Vector(0, 0, 1), 2.1), False)
sketch13.addConstraint(Sketcher.Constraint("Diameter", 0, 4.2))
sketch13.addConstraint(Sketcher.Constraint("DistanceX", -1, 1, 0, 3, 50.0))
sketch13.addConstraint(Sketcher.Constraint("DistanceY", -1, 1, 0, 3, 30.0))
doc.recompute()
hole5 = doc.addObject("PartDesign::Hole", "Hole004")
body.addObject(hole5)
hole5.Profile = sketch13
hole5.ThreadType = "None"
hole5.Diameter = 4.2
hole5.DepthType = "Dimension"
hole5.Depth = 6
hole5.DrillPoint = "Flat"
hole5.HoleCutType = "Countersink"
hole5.HoleCutDiameter = 5.05
hole5.HoleCutCountersinkAngle = 90

sketch14 = doc.addObject("Sketcher::SketchObject", "Sketch013")
body.addObject(sketch14)
sketch14.AttachmentSupport = (doc.XZ_Plane, [""])
sketch14.MapMode = "FlatFace"
sketch14.addGeometry(Part.Circle(Vector(12, 30, 0), Vector(0, 0, 1), 10), False)
sketch14.addConstraint(Sketcher.Constraint("Diameter", 0, 20.0))
sketch14.addConstraint(Sketcher.Constraint("DistanceX", -1, 1, 0, 3, 12.0))
sketch14.addConstraint(Sketcher.Constraint("DistanceY", -1, 1, 0, 3, 30.0))
pocket8 = doc.addObject("PartDesign::Pocket", "Pocket007")
body.addObject(pocket8)
pocket8.Profile = sketch14
pocket8.Length = 30

sketch15 = doc.addObject("Sketcher::SketchObject", "Sketch014")
body.addObject(sketch15)
sketch15.AttachmentSupport = (doc.YZ_Plane, [""])
sketch15.MapMode = "FlatFace"
sketch15.AttachmentOffset = App.Placement(Vector(0, 0, 12), App.Rotation())
add_polygon(sketch15, [(60, 40), (54, 40), (54, 38.475), (54.275, 38.75), (59.725, 38.75), (60, 38.475)])
sketch15.addGeometry(Part.LineSegment(Vector(54, 40, 0), Vector(60, 40, 0)), True)
sketch15.addConstraint(Sketcher.Constraint("Horizontal", 0))
sketch15.addConstraint(Sketcher.Constraint("Vertical", 1))
sketch15.addConstraint(Sketcher.Constraint("Horizontal", 3))
sketch15.addConstraint(Sketcher.Constraint("Vertical", 5))
sketch15.addConstraint(Sketcher.Constraint("Horizontal", 6))
sketch15.addConstraint(Sketcher.Constraint("Coincident", 6, 1, 0, 2))
sketch15.addConstraint(Sketcher.Constraint("Perpendicular", 2, 4))
sketch15.addConstraint(Sketcher.Constraint("Horizontal", 1, 2, 4, 2))
sketch15.addConstraint(Sketcher.Constraint("Vertical", 4, 2, 6, 2))
sketch15.addConstraint(Sketcher.Constraint("Equal", 2, 4))
sketch15.addConstraint(Sketcher.Constraint("DistanceX", 0, 2, 0, 1, 6.0))
sketch15.addConstraint(Sketcher.Constraint("DistanceX", -1, 1, 0, 2, 54.0))
sketch15.addConstraint(Sketcher.Constraint("DistanceY", -1, 1, 0, 2, 40.0))
sketch15.addConstraint(Sketcher.Constraint("DistanceX", 3, 1, 3, 2, 5.45))
sketch15.addConstraint(Sketcher.Constraint("DistanceY", 1, 2, 1, 1, 1.525))
groove = doc.addObject("PartDesign::Groove", "Groove")
body.addObject(groove)
groove.Profile = sketch15
groove.ReferenceAxis = (sketch15, ["Axis0"])
groove.Angle = 360
doc.recompute()

linearpattern = doc.addObject("PartDesign::LinearPattern", "LinearPattern")
body.addObject(linearpattern)
linearpattern.Originals = [groove]
linearpattern.Direction = (doc.Z_Axis, [""])
linearpattern.Mode = "offset"
linearpattern.Offset = 20
linearpattern.Occurrences = 2
linearpattern.Reversed = True
body.Tip = linearpattern

doc.recompute()
